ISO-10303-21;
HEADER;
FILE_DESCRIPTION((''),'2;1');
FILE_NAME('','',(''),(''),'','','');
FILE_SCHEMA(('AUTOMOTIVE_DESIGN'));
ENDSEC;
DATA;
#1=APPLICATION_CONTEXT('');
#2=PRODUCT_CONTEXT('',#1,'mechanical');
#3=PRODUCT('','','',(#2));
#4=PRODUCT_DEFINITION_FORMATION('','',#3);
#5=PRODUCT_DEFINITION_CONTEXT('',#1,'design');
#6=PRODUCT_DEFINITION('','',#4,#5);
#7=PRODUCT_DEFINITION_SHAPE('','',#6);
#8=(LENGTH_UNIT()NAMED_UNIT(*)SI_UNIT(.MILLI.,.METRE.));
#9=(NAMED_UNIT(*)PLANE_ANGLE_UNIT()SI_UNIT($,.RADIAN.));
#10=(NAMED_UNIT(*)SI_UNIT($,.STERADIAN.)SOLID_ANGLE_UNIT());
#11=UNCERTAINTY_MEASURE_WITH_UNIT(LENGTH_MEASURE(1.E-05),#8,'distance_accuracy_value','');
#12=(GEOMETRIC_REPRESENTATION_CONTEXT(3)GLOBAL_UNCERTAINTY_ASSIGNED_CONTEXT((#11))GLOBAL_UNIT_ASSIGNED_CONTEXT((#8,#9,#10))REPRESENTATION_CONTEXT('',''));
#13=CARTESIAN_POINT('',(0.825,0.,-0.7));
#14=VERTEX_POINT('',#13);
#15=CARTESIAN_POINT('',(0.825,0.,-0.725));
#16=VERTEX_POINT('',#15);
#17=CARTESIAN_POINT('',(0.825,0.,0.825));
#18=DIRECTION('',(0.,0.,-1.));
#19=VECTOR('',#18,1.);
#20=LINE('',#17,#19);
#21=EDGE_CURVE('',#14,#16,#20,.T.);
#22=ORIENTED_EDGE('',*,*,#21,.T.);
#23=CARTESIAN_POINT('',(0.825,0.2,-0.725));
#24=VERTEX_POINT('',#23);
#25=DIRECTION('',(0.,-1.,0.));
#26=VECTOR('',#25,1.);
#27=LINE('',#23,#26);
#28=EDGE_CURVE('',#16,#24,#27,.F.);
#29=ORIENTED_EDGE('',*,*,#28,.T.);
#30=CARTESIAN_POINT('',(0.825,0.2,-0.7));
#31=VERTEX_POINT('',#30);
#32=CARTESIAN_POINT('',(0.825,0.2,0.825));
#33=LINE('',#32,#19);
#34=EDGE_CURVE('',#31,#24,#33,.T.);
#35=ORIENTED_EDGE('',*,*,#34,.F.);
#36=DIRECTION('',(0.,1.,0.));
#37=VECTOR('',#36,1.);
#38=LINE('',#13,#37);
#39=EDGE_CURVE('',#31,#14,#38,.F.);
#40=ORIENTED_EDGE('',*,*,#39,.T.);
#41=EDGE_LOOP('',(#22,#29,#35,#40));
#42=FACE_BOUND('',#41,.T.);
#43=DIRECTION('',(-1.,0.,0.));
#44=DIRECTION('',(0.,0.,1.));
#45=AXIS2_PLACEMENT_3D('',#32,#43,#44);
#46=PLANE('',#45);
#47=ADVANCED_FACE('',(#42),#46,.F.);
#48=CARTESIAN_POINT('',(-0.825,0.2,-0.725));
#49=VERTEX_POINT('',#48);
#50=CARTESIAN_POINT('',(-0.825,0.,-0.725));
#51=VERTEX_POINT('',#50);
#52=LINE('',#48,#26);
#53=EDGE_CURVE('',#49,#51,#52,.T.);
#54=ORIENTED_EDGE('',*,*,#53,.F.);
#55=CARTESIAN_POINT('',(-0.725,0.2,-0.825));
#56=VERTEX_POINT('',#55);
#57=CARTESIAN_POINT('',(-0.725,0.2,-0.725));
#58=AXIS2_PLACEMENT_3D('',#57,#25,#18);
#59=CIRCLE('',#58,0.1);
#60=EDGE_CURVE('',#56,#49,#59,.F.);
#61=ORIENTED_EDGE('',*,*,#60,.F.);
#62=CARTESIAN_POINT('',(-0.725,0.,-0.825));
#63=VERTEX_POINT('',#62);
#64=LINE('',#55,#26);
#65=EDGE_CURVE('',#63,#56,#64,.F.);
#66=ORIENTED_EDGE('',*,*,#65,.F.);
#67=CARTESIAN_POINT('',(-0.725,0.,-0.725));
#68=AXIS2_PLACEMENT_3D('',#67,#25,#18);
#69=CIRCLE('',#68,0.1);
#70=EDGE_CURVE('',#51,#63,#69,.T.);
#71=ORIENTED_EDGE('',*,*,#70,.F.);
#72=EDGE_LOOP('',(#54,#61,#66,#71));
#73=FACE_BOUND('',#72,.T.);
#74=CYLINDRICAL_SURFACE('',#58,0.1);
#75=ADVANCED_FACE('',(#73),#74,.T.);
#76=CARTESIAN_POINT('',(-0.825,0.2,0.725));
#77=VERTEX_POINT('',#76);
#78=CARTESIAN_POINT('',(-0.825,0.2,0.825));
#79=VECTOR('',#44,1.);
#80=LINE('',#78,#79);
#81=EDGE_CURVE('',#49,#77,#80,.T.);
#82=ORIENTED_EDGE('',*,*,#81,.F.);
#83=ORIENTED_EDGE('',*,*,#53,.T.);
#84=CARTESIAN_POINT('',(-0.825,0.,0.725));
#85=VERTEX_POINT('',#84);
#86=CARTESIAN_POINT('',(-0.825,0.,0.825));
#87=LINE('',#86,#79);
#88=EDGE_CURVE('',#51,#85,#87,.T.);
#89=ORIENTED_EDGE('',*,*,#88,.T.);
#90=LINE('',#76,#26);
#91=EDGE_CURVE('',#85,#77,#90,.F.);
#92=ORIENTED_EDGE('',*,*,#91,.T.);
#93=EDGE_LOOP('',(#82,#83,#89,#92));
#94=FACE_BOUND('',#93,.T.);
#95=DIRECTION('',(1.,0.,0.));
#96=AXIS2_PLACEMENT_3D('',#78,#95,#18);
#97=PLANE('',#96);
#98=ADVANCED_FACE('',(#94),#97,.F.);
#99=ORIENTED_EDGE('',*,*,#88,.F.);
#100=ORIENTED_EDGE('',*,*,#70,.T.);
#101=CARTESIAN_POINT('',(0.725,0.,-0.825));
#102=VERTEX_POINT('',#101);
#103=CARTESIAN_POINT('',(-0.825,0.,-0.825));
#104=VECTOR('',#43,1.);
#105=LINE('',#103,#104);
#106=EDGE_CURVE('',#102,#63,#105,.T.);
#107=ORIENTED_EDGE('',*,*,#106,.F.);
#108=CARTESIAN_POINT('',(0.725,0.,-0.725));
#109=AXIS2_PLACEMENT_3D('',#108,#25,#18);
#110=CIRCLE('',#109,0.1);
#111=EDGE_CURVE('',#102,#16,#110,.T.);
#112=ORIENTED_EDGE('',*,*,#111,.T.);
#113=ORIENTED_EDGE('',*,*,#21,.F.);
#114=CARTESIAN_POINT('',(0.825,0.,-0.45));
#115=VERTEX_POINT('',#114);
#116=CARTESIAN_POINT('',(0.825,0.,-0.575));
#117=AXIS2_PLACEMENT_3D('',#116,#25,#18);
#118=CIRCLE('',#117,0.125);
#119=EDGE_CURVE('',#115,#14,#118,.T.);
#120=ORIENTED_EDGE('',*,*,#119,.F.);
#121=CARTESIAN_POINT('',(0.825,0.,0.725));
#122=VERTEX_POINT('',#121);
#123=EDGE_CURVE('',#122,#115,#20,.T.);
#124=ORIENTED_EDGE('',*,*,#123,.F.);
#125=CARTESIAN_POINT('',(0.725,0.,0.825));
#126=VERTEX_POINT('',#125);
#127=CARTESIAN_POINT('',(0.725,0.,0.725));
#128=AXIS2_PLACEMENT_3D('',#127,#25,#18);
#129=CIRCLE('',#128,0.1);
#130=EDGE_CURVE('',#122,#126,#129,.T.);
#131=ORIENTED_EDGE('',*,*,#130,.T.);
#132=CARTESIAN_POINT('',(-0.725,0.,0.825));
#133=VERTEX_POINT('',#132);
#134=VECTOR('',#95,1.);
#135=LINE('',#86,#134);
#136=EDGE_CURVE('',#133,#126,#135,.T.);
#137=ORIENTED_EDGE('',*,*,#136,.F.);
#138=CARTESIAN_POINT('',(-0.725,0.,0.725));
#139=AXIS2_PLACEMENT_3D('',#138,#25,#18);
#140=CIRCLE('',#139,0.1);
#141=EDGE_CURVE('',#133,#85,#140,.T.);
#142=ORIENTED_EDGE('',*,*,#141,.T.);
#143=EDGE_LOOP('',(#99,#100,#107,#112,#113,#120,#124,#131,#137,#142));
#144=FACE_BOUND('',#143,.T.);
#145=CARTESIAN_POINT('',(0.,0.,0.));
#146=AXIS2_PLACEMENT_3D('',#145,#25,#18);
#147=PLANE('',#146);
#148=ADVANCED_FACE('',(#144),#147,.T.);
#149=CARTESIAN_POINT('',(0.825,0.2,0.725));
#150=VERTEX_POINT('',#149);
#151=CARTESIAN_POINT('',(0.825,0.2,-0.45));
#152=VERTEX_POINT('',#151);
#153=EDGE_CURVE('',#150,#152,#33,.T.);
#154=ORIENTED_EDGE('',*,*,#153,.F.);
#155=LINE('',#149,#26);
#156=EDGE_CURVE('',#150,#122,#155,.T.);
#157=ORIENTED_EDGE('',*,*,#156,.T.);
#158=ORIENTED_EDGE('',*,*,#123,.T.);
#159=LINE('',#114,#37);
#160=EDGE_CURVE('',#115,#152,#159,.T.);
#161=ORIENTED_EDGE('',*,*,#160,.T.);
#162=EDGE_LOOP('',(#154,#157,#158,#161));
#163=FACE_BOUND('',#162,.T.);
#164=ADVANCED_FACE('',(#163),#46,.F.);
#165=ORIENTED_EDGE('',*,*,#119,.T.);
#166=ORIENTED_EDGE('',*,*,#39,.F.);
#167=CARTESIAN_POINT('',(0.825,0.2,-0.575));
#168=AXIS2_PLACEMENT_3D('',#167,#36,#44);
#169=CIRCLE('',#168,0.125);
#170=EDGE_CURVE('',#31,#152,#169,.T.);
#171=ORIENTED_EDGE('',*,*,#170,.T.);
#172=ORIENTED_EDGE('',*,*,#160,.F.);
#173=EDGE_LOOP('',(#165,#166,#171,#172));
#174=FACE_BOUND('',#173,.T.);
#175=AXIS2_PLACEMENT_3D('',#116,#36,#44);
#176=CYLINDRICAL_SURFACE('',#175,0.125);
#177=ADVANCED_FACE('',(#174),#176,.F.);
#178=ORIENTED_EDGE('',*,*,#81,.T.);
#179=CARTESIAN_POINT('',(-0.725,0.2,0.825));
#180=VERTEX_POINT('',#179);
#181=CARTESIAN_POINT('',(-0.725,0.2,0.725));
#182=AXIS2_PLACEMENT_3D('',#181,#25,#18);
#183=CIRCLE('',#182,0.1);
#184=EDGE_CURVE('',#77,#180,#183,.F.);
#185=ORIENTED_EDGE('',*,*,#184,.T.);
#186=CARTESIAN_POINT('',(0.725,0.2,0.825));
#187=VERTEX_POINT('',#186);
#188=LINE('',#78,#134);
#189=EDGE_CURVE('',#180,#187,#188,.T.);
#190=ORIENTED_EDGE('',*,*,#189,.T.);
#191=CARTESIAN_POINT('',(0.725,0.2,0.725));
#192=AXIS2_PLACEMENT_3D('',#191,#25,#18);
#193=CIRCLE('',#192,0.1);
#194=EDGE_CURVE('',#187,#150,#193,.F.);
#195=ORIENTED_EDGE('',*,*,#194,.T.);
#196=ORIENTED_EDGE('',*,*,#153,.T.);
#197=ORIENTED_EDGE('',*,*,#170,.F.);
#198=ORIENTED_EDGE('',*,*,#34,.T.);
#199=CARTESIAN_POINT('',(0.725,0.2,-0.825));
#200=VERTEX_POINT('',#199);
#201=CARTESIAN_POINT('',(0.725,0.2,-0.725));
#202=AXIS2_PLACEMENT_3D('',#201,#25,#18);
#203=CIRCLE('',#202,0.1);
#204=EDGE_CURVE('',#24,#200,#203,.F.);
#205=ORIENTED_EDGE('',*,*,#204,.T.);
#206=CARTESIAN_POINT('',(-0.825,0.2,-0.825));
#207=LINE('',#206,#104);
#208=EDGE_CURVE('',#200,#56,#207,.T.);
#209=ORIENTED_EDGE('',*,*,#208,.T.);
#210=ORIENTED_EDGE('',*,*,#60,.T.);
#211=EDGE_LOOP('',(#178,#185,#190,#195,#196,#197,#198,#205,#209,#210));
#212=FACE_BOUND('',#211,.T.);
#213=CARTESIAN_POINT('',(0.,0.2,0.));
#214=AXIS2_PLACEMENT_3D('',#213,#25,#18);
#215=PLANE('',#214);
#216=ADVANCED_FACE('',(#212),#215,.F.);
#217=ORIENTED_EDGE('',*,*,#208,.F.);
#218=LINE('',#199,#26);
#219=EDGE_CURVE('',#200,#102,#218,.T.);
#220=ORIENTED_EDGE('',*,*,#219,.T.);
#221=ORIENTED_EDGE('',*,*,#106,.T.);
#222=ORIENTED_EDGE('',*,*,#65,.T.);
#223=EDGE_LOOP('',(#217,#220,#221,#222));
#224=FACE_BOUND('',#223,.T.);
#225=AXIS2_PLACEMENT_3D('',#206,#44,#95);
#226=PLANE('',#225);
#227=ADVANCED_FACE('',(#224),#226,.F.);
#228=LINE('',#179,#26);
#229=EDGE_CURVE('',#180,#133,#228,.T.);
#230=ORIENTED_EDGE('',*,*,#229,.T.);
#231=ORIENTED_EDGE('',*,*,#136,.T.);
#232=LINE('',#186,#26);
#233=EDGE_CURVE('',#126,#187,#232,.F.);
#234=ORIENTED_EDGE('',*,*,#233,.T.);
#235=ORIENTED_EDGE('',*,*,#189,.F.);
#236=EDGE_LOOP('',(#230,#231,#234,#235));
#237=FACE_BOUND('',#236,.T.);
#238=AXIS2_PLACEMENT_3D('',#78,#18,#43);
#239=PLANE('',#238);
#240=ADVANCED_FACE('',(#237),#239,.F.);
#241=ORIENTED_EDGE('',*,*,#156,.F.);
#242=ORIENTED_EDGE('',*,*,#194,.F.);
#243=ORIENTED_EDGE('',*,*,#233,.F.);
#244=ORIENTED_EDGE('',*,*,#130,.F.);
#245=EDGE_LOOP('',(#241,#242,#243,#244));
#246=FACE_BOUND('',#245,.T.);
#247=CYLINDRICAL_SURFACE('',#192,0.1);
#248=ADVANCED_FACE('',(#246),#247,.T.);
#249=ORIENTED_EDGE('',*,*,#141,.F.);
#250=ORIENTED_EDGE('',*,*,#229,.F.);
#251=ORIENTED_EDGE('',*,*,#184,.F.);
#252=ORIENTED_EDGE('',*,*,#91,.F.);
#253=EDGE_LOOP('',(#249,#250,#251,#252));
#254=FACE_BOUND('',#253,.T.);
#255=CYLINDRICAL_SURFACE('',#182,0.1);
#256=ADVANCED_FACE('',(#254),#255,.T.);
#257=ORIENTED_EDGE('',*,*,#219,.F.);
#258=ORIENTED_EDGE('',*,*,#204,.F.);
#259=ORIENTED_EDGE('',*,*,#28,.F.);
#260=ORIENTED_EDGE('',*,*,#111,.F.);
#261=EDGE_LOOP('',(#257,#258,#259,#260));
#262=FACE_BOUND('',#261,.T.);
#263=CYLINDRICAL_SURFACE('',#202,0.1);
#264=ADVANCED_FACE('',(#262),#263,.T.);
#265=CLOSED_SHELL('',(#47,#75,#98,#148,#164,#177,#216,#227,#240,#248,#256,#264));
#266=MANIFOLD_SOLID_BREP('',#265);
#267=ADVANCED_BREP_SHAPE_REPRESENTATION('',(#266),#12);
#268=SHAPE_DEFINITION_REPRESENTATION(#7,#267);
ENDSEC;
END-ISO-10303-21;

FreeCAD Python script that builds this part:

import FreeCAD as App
import Part
import Sketcher
from FreeCAD import Vector
Q = App.Units.Quantity


def edges_at(feature, points):
    """Names of the edges that pass closest to the given points."""
    edges = feature.Shape.Edges
    near = lambda p: min(range(len(edges)), key=lambda i: edges[i].distToShape(Part.Vertex(*p))[0])
    return sorted({f"Edge{near(p) + 1}" for p in points})

doc = App.newDocument("Part")
body = doc.addObject("PartDesign::Body", "Body")

# Sketch on XZ plane
sketch1 = body.newObject("Sketcher::SketchObject", "Sketch")
sketch1.AttachmentSupport = (doc.getObject("XZ_Plane"), [""])
sketch1.MapMode = "FlatFace"
sketch1.addGeometry([
    Part.LineSegment(Vector(-0.8, -0.8, 0), Vector(-0.8, 0.8, 0)),
    Part.LineSegment(Vector(-0.8, 0.8, 0), Vector(0.8, 0.8, 0)),
    Part.LineSegment(Vector(0.8, 0.8, 0), Vector(0.8, -0.8, 0)),
    Part.LineSegment(Vector(0.8, -0.8, 0), Vector(-0.8, -0.8, 0)),
], False)
sketch1.addConstraint([
    Sketcher.Constraint("Coincident", 0, 2, 1, 1),
    Sketcher.Constraint("Coincident", 1, 2, 2, 1),
    Sketcher.Constraint("Coincident", 2, 2, 3, 1),
    Sketcher.Constraint("Coincident", 3, 2, 0, 1),
    Sketcher.Constraint("Vertical", 0),
    Sketcher.Constraint("Horizontal", 1),
    Sketcher.Constraint("Vertical", 2),
    Sketcher.Constraint("Horizontal", 3),
    Sketcher.Constraint("Symmetric", 0, 2, 2, 2, -1, 1),
    Sketcher.Constraint("Equal", 3, 0),
    Sketcher.Constraint("DistanceX", 1, 1, 1, 2, Q("1.65 mm")),
])
pad1 = body.newObject("PartDesign::Pad", "Pad")
pad1.Profile = sketch1
pad1.Length = 0.2
pad1.Reversed = True
doc.recompute()

fillet = body.newObject("PartDesign::Fillet", "Fillet")
fillet.Base = (pad1, edges_at(pad1, [
    (0.825, 0.1, 0.825),
    (-0.825, 0.1, 0.825),
    (-0.825, 0.1, -0.825),
    (0.825, 0.1, -0.825),
]))
fillet.Radius = 0.1

# Sketch on XZ plane
sketch2 = body.newObject("Sketcher::SketchObject", "Sketch001")
sketch2.AttachmentSupport = (doc.getObject("XZ_Plane"), [""])
sketch2.MapMode = "FlatFace"
sketch2.AttachmentOffset = App.Placement(Vector(0, 0, -0.2), App.Rotation())
sketch2.addGeometry(Part.Circle(Vector(0.82, -0.57, 0), Vector(0, 0, 1), 0.12), False)
sketch2.addConstraint([
    Sketcher.Constraint("Diameter", 0, Q("0.25 mm")),
    Sketcher.Constraint("DistanceX", -1, 1, 0, 3, Q("0.825 mm")),
    Sketcher.Constraint("DistanceY", 0, 3, -1, 1, Q("0.575 mm")),
])
pocket1 = body.newObject("PartDesign::Pocket", "Pocket")
pocket1.Profile = sketch2
pocket1.Type = "ThroughAll"
pocket1.Reversed = True

doc.recompute()
